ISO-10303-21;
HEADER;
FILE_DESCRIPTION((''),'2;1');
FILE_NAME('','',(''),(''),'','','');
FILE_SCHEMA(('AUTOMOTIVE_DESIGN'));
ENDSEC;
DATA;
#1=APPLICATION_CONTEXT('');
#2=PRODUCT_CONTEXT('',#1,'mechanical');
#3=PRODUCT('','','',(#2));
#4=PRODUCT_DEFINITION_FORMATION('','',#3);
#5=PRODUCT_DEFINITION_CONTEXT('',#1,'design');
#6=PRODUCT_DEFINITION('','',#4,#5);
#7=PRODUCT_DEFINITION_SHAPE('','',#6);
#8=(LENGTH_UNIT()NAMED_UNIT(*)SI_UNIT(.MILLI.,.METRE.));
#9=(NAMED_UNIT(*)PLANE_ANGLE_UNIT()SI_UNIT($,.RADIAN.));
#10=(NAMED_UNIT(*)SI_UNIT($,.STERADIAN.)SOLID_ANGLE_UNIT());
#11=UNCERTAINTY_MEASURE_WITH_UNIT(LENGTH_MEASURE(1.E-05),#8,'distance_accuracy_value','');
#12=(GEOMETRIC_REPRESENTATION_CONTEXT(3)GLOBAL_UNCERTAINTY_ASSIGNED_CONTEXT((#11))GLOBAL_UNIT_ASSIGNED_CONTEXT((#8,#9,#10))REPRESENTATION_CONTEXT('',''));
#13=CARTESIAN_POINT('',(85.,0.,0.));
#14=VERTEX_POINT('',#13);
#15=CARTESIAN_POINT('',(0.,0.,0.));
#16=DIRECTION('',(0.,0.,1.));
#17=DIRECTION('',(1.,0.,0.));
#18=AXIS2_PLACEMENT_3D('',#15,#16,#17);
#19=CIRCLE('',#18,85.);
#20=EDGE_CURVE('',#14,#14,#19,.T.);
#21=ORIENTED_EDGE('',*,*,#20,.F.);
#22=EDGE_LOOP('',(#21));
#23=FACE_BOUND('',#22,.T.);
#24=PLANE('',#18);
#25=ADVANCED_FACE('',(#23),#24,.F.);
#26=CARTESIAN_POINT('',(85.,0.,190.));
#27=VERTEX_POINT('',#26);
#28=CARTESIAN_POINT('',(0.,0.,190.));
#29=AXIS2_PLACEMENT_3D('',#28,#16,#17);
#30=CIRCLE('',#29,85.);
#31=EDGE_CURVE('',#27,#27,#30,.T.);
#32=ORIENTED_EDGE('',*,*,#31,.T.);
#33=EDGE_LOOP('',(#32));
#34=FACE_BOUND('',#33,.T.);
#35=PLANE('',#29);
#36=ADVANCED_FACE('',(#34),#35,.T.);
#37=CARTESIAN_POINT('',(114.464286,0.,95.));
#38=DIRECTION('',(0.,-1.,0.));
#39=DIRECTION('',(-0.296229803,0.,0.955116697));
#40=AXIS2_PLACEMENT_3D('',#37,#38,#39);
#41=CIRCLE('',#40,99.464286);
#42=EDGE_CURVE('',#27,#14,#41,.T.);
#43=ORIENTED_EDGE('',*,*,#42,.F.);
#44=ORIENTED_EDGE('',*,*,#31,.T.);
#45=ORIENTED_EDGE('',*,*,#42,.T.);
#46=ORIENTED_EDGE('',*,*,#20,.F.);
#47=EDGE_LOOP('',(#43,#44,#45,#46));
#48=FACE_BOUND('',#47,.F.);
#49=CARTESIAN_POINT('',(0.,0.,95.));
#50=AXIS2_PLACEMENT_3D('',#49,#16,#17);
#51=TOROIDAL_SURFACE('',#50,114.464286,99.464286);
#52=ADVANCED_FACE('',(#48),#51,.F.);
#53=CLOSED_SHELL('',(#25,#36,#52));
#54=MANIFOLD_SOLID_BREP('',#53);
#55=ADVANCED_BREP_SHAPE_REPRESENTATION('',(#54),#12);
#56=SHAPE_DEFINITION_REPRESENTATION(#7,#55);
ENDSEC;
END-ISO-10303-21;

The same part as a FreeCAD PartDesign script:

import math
import FreeCAD as App
import Part
import Sketcher

doc = App.newDocument("Part")
params = doc.addObject("Spreadsheet::Sheet", "Params")
for row, (alias, value) in enumerate([
    ("sketch1_width", "85 mm"),
    ("sketch1_height", "190 mm"),
    ("revolution_angle", "360 deg"),
], start=1):
    params.set(f"A{row}", alias)
    params.set(f"B{row}", "=" + value)
    params.setAlias(f"B{row}", alias)

body = doc.addObject("PartDesign::Body", "Body")

# Sketch on XZ plane
sketch1 = body.newObject("Sketcher::SketchObject", "Sketch")
sketch1.AttachmentSupport = (doc.getObject("XZ_Plane"), [""])
sketch1.MapMode = "FlatFace"
sketch1.addGeometry([
    Part.ArcOfCircle(Part.Circle(App.Vector(114, 95, 0), App.Vector(0, 0, 1), 99), math.radians(107), math.radians(253)),
    Part.LineSegment(App.Vector(85, 190, 0), App.Vector(0, 190, 0)),
    Part.LineSegment(App.Vector(0, 190, 0), App.Vector(0, 0, 0)),
    Part.LineSegment(App.Vector(0, 0, 0), App.Vector(85, 0, 0)),
], False)
sketch1.addConstraint([
    Sketcher.Constraint("Coincident", 0, 1, 1, 1),
    Sketcher.Constraint("Coincident", 1, 2, 2, 1),
    Sketcher.Constraint("Coincident", 2, 2, 3, 1),
    Sketcher.Constraint("Coincident", 3, 2, 0, 2),
    Sketcher.Constraint("Horizontal", 1),
    Sketcher.Constraint("Vertical", 2),
    Sketcher.Constraint("Horizontal", 3),
    Sketcher.Constraint("Coincident", 2, 2, -1, 1),
    Sketcher.Constraint("Vertical", 0, 1, 3, 2),
    Sketcher.Constraint("DistanceX", 1, 2, 1, 1, 85.0),
    Sketcher.Constraint("DistanceY", 2, 2, 2, 1, 190.0),
    Sketcher.Constraint("Radius", 0, 99.464286),
])
sketch1.setExpression("Constraints[9]", "Params.sketch1_width")
sketch1.setExpression("Constraints[10]", "Params.sketch1_height")
revolution = body.newObject("PartDesign::Revolution", "Revolution")
revolution.Profile = sketch1
revolution.ReferenceAxis = (sketch1, ["V_Axis"])
revolution.setExpression("Angle", "Params.revolution_angle")

doc.recompute()
